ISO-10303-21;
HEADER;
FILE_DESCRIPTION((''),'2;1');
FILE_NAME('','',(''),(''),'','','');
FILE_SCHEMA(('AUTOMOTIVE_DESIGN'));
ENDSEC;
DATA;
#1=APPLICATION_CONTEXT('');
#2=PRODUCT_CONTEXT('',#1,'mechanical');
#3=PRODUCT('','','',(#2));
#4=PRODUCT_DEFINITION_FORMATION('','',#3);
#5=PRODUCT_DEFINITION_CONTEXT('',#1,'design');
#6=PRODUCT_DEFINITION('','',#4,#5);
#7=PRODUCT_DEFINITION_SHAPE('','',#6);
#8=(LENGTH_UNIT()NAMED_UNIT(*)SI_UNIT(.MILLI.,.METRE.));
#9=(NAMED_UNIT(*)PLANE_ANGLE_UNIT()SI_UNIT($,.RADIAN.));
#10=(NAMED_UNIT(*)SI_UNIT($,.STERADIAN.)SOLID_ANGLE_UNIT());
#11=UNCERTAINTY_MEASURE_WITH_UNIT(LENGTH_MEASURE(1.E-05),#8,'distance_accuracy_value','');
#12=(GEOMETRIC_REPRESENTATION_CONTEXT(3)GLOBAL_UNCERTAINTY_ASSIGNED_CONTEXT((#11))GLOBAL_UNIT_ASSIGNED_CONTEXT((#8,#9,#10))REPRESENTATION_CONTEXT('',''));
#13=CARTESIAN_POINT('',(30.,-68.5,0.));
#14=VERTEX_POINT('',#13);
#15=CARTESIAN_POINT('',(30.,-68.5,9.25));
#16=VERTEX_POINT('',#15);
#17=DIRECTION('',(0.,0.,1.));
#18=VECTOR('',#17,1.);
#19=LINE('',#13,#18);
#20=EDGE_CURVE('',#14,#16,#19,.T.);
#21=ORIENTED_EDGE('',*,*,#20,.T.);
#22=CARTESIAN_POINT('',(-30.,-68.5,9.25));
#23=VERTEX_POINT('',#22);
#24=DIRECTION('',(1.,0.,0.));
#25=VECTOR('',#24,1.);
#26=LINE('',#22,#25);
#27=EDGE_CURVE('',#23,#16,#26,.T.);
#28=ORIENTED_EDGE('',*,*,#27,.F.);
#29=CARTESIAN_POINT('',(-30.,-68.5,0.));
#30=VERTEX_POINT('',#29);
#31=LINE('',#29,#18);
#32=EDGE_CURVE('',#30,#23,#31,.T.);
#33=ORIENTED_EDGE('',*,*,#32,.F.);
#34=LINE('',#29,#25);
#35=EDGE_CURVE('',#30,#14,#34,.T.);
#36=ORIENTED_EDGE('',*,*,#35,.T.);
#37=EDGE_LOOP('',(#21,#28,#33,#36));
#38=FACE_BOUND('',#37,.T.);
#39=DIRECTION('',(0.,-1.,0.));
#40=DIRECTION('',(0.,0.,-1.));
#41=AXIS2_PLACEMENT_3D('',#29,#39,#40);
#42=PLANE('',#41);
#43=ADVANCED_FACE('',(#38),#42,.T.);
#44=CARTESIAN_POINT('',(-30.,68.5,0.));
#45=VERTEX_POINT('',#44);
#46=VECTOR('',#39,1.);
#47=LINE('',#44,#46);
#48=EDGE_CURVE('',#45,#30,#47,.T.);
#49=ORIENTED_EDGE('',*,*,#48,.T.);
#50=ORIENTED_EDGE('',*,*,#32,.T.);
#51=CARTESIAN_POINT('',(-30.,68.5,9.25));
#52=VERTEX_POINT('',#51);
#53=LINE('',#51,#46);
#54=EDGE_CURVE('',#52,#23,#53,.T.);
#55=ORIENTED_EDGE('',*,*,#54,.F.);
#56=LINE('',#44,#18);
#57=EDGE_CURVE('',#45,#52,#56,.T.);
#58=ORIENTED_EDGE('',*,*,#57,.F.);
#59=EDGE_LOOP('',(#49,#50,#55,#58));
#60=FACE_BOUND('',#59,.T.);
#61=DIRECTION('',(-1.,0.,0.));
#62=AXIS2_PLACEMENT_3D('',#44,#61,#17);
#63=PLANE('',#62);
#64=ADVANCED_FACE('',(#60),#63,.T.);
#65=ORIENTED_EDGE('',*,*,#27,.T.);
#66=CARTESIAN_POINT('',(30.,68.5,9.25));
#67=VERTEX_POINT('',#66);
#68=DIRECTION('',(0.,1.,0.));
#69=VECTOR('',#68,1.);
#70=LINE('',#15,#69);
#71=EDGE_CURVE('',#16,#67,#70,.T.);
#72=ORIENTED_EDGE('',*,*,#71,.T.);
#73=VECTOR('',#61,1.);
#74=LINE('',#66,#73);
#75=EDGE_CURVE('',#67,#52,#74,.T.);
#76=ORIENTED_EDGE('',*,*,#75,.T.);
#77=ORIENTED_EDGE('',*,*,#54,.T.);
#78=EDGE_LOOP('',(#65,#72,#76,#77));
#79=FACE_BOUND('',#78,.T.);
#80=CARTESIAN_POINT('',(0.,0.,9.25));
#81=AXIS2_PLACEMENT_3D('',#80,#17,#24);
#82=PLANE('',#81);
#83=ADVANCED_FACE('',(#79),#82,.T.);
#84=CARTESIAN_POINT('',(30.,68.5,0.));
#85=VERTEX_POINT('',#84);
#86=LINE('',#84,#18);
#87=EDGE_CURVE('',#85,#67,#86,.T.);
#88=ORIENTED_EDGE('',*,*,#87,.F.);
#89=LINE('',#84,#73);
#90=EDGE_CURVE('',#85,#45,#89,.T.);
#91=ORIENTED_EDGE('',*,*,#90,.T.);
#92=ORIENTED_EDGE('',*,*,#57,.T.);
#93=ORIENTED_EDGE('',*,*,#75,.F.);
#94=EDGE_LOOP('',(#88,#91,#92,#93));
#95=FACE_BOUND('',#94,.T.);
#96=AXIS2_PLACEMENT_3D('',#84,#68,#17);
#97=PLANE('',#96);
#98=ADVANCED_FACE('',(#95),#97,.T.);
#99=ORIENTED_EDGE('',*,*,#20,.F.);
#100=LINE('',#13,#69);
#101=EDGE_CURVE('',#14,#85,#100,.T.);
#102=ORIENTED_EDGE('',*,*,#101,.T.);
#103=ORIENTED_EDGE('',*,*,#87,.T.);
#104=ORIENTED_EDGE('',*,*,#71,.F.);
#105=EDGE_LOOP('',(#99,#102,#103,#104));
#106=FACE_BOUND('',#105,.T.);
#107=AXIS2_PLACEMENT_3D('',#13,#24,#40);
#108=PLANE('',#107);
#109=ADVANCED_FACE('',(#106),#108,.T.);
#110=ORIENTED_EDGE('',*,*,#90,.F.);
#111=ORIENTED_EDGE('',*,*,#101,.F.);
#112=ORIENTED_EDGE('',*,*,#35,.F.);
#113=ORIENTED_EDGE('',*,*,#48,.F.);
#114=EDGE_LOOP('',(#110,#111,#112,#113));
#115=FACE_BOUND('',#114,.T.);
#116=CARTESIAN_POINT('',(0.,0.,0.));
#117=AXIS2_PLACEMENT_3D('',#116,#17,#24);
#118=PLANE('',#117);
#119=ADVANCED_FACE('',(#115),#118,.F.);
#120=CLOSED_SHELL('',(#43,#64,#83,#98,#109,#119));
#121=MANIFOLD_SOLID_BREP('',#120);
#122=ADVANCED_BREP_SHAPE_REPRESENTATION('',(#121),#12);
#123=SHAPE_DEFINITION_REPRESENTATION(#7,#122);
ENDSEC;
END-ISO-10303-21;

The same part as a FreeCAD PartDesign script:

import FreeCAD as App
import Part
import Sketcher
from FreeCAD import Vector


def add_polygon(sketch, points):
    """Adds a closed chain of lines whose ends are joined by coincident constraints."""
    first, n = sketch.GeometryCount, len(points)
    for a, b in zip(points, points[1:] + points[:1]):
        sketch.addGeometry(Part.LineSegment(App.Vector(*a, 0), App.Vector(*b, 0)), False)
    for i in range(n):
        sketch.addConstraint(Sketcher.Constraint("Coincident", first + i, 2, first + (i + 1) % n, 1))

doc = App.newDocument("Part")
body = doc.addObject("PartDesign::Body", "Body")

# Sketch on XY plane
sketch1 = doc.addObject("Sketcher::SketchObject", "Sketch")
body.addObject(sketch1)
sketch1.AttachmentSupport = (doc.XY_Plane, [""])
sketch1.MapMode = "FlatFace"
sketch1.AttachmentOffset = App.Placement(Vector(0, 0, 9.25), App.Rotation())
add_polygon(sketch1, [(-30, 68.5), (-30, -68.5), (30, -68.5), (30, 68.5)])  # lines 0-3
sketch1.addConstraint([
    Sketcher.Constraint("Vertical", 0),
    Sketcher.Constraint("Horizontal", 1),
    Sketcher.Constraint("Vertical", 2),
    Sketcher.Constraint("Horizontal", 3),
    Sketcher.Constraint("Symmetric", 0, 2, 2, 2, -1, 1),
    Sketcher.Constraint("DistanceX", 1, 1, 1, 2, 60.0),
    Sketcher.Constraint("DistanceY", 0, 2, 0, 1, 137.0),
])
pad1 = doc.addObject("PartDesign::Pad", "Pad")
body.addObject(pad1)
pad1.Profile = sketch1
pad1.Length = 9.25
pad1.Reversed = True

doc.recompute()
